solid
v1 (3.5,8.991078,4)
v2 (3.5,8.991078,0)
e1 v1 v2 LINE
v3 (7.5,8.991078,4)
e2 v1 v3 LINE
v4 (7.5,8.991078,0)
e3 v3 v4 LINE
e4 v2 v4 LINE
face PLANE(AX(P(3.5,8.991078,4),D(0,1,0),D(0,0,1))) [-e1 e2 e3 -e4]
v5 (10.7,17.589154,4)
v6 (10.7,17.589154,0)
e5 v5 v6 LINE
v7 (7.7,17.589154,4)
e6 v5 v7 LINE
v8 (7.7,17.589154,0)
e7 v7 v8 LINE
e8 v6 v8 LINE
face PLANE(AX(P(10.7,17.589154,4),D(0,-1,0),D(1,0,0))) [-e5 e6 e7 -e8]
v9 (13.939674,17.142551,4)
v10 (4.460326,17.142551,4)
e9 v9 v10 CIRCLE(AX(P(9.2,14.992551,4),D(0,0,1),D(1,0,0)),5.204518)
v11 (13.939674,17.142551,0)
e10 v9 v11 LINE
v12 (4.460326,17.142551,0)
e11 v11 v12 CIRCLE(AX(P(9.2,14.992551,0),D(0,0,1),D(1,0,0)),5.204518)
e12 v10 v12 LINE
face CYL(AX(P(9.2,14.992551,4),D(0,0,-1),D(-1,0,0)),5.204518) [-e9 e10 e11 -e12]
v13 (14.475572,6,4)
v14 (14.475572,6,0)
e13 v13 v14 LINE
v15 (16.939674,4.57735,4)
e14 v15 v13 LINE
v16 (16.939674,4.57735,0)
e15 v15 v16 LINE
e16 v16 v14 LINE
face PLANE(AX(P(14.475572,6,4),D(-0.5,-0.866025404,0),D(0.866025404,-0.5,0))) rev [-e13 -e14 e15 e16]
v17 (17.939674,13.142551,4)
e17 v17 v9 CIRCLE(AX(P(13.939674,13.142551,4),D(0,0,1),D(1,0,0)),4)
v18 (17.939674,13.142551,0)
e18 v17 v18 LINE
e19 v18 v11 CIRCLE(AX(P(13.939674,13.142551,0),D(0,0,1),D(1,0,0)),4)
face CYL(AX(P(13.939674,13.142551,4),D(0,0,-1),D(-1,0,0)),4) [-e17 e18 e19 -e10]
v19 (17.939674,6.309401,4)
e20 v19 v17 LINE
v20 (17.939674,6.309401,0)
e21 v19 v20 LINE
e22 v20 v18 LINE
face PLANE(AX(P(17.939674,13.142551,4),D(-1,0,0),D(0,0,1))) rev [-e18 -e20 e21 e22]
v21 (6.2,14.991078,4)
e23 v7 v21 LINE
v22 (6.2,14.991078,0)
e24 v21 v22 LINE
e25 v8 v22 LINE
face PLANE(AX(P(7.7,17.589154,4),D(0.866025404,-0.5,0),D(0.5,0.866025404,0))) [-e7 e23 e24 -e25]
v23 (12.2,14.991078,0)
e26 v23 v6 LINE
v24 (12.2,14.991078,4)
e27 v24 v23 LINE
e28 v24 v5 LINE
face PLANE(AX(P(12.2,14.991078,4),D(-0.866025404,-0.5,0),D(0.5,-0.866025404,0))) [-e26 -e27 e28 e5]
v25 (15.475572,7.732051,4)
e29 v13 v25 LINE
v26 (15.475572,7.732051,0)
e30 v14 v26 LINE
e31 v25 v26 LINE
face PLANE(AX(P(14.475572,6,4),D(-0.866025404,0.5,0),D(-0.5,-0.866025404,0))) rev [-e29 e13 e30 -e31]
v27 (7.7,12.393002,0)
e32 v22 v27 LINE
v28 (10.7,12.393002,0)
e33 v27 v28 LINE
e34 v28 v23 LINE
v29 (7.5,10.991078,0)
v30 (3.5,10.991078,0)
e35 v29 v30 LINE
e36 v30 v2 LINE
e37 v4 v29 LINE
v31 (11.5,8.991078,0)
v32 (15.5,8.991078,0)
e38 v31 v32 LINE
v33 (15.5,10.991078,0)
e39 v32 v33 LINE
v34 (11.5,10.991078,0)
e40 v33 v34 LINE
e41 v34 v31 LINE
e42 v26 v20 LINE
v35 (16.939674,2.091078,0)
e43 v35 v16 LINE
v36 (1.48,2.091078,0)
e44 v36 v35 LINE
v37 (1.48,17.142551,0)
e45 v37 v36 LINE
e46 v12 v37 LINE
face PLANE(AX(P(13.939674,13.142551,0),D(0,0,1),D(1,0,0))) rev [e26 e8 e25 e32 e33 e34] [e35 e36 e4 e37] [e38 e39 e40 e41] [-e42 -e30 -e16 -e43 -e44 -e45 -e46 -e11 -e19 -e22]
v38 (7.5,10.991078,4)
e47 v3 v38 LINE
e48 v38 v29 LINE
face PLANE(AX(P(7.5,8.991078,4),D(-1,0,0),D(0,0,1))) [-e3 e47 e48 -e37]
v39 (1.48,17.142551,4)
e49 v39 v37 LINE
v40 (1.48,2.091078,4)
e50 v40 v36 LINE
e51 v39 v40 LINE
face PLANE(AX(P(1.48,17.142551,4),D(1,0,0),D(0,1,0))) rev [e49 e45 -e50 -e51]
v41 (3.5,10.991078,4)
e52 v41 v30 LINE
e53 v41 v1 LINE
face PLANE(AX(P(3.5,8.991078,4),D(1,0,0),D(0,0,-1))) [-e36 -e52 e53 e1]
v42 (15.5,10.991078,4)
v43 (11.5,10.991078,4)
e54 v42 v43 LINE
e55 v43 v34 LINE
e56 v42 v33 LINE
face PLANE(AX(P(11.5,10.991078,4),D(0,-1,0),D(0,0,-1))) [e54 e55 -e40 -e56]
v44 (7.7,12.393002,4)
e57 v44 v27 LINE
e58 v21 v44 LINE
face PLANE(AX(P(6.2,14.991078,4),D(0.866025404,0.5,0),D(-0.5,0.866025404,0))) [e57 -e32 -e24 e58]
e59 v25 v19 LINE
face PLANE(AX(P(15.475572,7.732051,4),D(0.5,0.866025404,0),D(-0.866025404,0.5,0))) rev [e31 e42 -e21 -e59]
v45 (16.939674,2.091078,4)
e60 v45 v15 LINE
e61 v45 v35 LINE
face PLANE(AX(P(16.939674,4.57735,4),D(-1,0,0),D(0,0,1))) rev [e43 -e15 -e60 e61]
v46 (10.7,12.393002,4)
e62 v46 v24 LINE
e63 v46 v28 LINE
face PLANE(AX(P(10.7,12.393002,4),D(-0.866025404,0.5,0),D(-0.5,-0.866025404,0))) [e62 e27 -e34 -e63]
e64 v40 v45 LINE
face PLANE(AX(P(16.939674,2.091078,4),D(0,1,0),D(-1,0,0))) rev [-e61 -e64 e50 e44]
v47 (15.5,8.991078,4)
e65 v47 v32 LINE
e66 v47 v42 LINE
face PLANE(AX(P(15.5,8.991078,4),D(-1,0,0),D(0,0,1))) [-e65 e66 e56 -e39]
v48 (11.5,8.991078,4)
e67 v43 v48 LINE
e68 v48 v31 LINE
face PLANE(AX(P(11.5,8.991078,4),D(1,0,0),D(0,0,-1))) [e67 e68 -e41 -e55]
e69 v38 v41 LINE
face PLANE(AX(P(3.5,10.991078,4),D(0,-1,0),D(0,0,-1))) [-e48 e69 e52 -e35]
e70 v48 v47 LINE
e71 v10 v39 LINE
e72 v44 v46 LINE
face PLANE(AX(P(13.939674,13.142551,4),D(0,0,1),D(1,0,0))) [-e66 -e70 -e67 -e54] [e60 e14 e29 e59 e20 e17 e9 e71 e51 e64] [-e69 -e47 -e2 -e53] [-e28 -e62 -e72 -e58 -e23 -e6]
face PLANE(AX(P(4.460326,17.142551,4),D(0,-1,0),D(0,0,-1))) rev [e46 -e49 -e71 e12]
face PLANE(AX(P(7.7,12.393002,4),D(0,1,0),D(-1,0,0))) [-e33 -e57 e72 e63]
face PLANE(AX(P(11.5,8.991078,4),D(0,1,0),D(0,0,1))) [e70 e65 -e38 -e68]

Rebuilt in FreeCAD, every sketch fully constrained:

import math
import FreeCAD as App
import Part
import Sketcher
Q = App.Units.Quantity


def add_polygon(sketch, points):
    """Adds a closed chain of lines whose ends are joined by coincident constraints."""
    first, n = sketch.GeometryCount, len(points)
    for a, b in zip(points, points[1:] + points[:1]):
        sketch.addGeometry(Part.LineSegment(App.Vector(*a, 0), App.Vector(*b, 0)), False)
    for i in range(n):
        sketch.addConstraint(Sketcher.Constraint("Coincident", first + i, 2, first + (i + 1) % n, 1))

doc = App.newDocument("Part")
body = doc.addObject("PartDesign::Body", "Body")

# Sketch on XY plane
sketch1 = body.newObject("Sketcher::SketchObject", "Sketch")
sketch1.AttachmentSupport = (doc.getObject("XY_Plane"), [""])
sketch1.MapMode = "FlatFace"
sketch1.addGeometry(Part.LineSegment(App.Vector(14.475572, 6, 0), App.Vector(15.475572, 7.732051, 0)), False)  # 0
sketch1.addGeometry(Part.LineSegment(App.Vector(15.475572, 7.732051, 0), App.Vector(17.939674, 6.309401, 0)), False)  # 1
sketch1.addGeometry(Part.LineSegment(App.Vector(17.939674, 6.309401, 0), App.Vector(17.939674, 13.142551, 0)), False)  # 2
sketch1.addGeometry(Part.ArcOfCircle(Part.Circle(App.Vector(13.939674, 13.142551, 0), App.Vector(0, 0, 1), 4), math.radians(0), math.radians(90)), False)  # 3
sketch1.addGeometry(Part.ArcOfCircle(Part.Circle(App.Vector(9.2, 14.992551, 0), App.Vector(0, 0, 1), 5.204518), math.radians(24.399886), math.radians(155.600114)), False)  # 4
sketch1.addGeometry(Part.LineSegment(App.Vector(4.460326, 17.142551, 0), App.Vector(1.48, 17.142551, 0)), False)  # 5
sketch1.addGeometry(Part.LineSegment(App.Vector(1.48, 17.142551, 0), App.Vector(1.48, 2.091078, 0)), False)  # 6
sketch1.addGeometry(Part.LineSegment(App.Vector(1.48, 2.091078, 0), App.Vector(16.939674, 2.091078, 0)), False)  # 7
sketch1.addGeometry(Part.LineSegment(App.Vector(16.939674, 2.091078, 0), App.Vector(16.939674, 4.57735, 0)), False)  # 8
sketch1.addGeometry(Part.LineSegment(App.Vector(16.939674, 4.57735, 0), App.Vector(14.475572, 6, 0)), False)  # 9
add_polygon(sketch1, [(7.5, 8.991078), (3.5, 8.991078), (3.5, 10.991078), (7.5, 10.991078)])  # lines 10-13
add_polygon(sketch1, [(15.5, 8.991078), (11.5, 8.991078), (11.5, 10.991078), (15.5, 10.991078)])  # lines 14-17
add_polygon(sketch1, [(7.7, 12.393002), (6.2, 14.991078), (7.7, 17.589154), (10.7, 17.589154), (12.2, 14.991078), (10.7, 12.393002)])  # lines 18-23
sketch1.addConstraint([
    Sketcher.Constraint("Coincident", 0, 2, 1, 1),
    Sketcher.Constraint("Coincident", 1, 2, 2, 1),
    Sketcher.Constraint("Tangent", 2, 2, 3, 1),
    Sketcher.Constraint("Coincident", 3, 2, 4, 1),
    Sketcher.Constraint("Coincident", 4, 2, 5, 1),
    Sketcher.Constraint("Coincident", 5, 2, 6, 1),
    Sketcher.Constraint("Coincident", 6, 2, 7, 1),
    Sketcher.Constraint("Coincident", 7, 2, 8, 1),
    Sketcher.Constraint("Coincident", 8, 2, 9, 1),
    Sketcher.Constraint("Coincident", 9, 2, 0, 1),
    Sketcher.Constraint("Vertical", 2),
    Sketcher.Constraint("Horizontal", 5),
    Sketcher.Constraint("Vertical", 6),
    Sketcher.Constraint("Horizontal", 7),
    Sketcher.Constraint("Vertical", 8),
    Sketcher.Constraint("Horizontal", 10),
    Sketcher.Constraint("Vertical", 11),
    Sketcher.Constraint("Horizontal", 12),
    Sketcher.Constraint("Vertical", 13),
    Sketcher.Constraint("Horizontal", 14),
    Sketcher.Constraint("Vertical", 15),
    Sketcher.Constraint("Horizontal", 16),
    Sketcher.Constraint("Vertical", 17),
    Sketcher.Constraint("Horizontal", 20),
    Sketcher.Constraint("Horizontal", 23),
    Sketcher.Constraint("Perpendicular", 0, 1),
    Sketcher.Constraint("Parallel", 1, 9),
    Sketcher.Constraint("Perpendicular", 9, 19),
    Sketcher.Constraint("Parallel", 18, 21),
    Sketcher.Constraint("Parallel", 19, 22),
    Sketcher.Constraint("Horizontal", 3, 2, 4, 2),
    Sketcher.Constraint("Horizontal", 13, 2, 14, 2),
    Sketcher.Constraint("Horizontal", 12, 2, 15, 2),
    Sketcher.Constraint("Horizontal", 18, 2, 21, 2),
    Sketcher.Constraint("Vertical", 20, 2, 22, 2),
    Sketcher.Constraint("Vertical", 19, 2, 23, 2),
    Sketcher.Constraint("Equal", 12, 14),
    Sketcher.Constraint("Equal", 1, 9),
    Sketcher.Constraint("Radius", 3, 4.0),
    Sketcher.Constraint("DistanceX", 10, 2, 10, 1, 4.0),
    Sketcher.Constraint("DistanceX", 20, 1, 20, 2, 3.0),
    Sketcher.Constraint("DistanceY", 11, 1, 11, 2, 2.0),
    Sketcher.Constraint("Angle", 0, Q("60 deg")),
    Sketcher.Constraint("Distance", 0, 2.0),
    Sketcher.Constraint("Distance", 18, 3.0),
    Sketcher.Constraint("DistanceY", -1, 1, 9, 2, 6.0),
    Sketcher.Constraint("DistanceX", 3, 2, 2, 2, 4.0),
    Sketcher.Constraint("DistanceX", 13, 2, 14, 2, 4.0),
    Sketcher.Constraint("DistanceX", 18, 2, 4, 3, 3.0),
    Sketcher.Constraint("DistanceY", 12, 2, 18, 2, 4.0),
    Sketcher.Constraint("DistanceX", -1, 1, 4, 3, 9.2),
    Sketcher.Constraint("DistanceX", -1, 1, 10, 2, 3.5),
    Sketcher.Constraint("DistanceY", 6, 2, 10, 2, 6.9),
    Sketcher.Constraint("DistanceX", -1, 1, 5, 2, 1.48),
    Sketcher.Constraint("DistanceY", 3, 3, 4, 3, 1.85),
    Sketcher.Constraint("DistanceY", -1, 1, 22, 2, 12.393002),
    Sketcher.Constraint("Radius", 4, 5.204518),
    Sketcher.Constraint("Distance", 1, 2.845299),
    Sketcher.Constraint("DistanceY", 2, 1, 2, 2, 6.83315),
])
pad1 = body.newObject("PartDesign::Pad", "Pad")
pad1.Profile = sketch1
pad1.Length = 4

doc.recompute()
